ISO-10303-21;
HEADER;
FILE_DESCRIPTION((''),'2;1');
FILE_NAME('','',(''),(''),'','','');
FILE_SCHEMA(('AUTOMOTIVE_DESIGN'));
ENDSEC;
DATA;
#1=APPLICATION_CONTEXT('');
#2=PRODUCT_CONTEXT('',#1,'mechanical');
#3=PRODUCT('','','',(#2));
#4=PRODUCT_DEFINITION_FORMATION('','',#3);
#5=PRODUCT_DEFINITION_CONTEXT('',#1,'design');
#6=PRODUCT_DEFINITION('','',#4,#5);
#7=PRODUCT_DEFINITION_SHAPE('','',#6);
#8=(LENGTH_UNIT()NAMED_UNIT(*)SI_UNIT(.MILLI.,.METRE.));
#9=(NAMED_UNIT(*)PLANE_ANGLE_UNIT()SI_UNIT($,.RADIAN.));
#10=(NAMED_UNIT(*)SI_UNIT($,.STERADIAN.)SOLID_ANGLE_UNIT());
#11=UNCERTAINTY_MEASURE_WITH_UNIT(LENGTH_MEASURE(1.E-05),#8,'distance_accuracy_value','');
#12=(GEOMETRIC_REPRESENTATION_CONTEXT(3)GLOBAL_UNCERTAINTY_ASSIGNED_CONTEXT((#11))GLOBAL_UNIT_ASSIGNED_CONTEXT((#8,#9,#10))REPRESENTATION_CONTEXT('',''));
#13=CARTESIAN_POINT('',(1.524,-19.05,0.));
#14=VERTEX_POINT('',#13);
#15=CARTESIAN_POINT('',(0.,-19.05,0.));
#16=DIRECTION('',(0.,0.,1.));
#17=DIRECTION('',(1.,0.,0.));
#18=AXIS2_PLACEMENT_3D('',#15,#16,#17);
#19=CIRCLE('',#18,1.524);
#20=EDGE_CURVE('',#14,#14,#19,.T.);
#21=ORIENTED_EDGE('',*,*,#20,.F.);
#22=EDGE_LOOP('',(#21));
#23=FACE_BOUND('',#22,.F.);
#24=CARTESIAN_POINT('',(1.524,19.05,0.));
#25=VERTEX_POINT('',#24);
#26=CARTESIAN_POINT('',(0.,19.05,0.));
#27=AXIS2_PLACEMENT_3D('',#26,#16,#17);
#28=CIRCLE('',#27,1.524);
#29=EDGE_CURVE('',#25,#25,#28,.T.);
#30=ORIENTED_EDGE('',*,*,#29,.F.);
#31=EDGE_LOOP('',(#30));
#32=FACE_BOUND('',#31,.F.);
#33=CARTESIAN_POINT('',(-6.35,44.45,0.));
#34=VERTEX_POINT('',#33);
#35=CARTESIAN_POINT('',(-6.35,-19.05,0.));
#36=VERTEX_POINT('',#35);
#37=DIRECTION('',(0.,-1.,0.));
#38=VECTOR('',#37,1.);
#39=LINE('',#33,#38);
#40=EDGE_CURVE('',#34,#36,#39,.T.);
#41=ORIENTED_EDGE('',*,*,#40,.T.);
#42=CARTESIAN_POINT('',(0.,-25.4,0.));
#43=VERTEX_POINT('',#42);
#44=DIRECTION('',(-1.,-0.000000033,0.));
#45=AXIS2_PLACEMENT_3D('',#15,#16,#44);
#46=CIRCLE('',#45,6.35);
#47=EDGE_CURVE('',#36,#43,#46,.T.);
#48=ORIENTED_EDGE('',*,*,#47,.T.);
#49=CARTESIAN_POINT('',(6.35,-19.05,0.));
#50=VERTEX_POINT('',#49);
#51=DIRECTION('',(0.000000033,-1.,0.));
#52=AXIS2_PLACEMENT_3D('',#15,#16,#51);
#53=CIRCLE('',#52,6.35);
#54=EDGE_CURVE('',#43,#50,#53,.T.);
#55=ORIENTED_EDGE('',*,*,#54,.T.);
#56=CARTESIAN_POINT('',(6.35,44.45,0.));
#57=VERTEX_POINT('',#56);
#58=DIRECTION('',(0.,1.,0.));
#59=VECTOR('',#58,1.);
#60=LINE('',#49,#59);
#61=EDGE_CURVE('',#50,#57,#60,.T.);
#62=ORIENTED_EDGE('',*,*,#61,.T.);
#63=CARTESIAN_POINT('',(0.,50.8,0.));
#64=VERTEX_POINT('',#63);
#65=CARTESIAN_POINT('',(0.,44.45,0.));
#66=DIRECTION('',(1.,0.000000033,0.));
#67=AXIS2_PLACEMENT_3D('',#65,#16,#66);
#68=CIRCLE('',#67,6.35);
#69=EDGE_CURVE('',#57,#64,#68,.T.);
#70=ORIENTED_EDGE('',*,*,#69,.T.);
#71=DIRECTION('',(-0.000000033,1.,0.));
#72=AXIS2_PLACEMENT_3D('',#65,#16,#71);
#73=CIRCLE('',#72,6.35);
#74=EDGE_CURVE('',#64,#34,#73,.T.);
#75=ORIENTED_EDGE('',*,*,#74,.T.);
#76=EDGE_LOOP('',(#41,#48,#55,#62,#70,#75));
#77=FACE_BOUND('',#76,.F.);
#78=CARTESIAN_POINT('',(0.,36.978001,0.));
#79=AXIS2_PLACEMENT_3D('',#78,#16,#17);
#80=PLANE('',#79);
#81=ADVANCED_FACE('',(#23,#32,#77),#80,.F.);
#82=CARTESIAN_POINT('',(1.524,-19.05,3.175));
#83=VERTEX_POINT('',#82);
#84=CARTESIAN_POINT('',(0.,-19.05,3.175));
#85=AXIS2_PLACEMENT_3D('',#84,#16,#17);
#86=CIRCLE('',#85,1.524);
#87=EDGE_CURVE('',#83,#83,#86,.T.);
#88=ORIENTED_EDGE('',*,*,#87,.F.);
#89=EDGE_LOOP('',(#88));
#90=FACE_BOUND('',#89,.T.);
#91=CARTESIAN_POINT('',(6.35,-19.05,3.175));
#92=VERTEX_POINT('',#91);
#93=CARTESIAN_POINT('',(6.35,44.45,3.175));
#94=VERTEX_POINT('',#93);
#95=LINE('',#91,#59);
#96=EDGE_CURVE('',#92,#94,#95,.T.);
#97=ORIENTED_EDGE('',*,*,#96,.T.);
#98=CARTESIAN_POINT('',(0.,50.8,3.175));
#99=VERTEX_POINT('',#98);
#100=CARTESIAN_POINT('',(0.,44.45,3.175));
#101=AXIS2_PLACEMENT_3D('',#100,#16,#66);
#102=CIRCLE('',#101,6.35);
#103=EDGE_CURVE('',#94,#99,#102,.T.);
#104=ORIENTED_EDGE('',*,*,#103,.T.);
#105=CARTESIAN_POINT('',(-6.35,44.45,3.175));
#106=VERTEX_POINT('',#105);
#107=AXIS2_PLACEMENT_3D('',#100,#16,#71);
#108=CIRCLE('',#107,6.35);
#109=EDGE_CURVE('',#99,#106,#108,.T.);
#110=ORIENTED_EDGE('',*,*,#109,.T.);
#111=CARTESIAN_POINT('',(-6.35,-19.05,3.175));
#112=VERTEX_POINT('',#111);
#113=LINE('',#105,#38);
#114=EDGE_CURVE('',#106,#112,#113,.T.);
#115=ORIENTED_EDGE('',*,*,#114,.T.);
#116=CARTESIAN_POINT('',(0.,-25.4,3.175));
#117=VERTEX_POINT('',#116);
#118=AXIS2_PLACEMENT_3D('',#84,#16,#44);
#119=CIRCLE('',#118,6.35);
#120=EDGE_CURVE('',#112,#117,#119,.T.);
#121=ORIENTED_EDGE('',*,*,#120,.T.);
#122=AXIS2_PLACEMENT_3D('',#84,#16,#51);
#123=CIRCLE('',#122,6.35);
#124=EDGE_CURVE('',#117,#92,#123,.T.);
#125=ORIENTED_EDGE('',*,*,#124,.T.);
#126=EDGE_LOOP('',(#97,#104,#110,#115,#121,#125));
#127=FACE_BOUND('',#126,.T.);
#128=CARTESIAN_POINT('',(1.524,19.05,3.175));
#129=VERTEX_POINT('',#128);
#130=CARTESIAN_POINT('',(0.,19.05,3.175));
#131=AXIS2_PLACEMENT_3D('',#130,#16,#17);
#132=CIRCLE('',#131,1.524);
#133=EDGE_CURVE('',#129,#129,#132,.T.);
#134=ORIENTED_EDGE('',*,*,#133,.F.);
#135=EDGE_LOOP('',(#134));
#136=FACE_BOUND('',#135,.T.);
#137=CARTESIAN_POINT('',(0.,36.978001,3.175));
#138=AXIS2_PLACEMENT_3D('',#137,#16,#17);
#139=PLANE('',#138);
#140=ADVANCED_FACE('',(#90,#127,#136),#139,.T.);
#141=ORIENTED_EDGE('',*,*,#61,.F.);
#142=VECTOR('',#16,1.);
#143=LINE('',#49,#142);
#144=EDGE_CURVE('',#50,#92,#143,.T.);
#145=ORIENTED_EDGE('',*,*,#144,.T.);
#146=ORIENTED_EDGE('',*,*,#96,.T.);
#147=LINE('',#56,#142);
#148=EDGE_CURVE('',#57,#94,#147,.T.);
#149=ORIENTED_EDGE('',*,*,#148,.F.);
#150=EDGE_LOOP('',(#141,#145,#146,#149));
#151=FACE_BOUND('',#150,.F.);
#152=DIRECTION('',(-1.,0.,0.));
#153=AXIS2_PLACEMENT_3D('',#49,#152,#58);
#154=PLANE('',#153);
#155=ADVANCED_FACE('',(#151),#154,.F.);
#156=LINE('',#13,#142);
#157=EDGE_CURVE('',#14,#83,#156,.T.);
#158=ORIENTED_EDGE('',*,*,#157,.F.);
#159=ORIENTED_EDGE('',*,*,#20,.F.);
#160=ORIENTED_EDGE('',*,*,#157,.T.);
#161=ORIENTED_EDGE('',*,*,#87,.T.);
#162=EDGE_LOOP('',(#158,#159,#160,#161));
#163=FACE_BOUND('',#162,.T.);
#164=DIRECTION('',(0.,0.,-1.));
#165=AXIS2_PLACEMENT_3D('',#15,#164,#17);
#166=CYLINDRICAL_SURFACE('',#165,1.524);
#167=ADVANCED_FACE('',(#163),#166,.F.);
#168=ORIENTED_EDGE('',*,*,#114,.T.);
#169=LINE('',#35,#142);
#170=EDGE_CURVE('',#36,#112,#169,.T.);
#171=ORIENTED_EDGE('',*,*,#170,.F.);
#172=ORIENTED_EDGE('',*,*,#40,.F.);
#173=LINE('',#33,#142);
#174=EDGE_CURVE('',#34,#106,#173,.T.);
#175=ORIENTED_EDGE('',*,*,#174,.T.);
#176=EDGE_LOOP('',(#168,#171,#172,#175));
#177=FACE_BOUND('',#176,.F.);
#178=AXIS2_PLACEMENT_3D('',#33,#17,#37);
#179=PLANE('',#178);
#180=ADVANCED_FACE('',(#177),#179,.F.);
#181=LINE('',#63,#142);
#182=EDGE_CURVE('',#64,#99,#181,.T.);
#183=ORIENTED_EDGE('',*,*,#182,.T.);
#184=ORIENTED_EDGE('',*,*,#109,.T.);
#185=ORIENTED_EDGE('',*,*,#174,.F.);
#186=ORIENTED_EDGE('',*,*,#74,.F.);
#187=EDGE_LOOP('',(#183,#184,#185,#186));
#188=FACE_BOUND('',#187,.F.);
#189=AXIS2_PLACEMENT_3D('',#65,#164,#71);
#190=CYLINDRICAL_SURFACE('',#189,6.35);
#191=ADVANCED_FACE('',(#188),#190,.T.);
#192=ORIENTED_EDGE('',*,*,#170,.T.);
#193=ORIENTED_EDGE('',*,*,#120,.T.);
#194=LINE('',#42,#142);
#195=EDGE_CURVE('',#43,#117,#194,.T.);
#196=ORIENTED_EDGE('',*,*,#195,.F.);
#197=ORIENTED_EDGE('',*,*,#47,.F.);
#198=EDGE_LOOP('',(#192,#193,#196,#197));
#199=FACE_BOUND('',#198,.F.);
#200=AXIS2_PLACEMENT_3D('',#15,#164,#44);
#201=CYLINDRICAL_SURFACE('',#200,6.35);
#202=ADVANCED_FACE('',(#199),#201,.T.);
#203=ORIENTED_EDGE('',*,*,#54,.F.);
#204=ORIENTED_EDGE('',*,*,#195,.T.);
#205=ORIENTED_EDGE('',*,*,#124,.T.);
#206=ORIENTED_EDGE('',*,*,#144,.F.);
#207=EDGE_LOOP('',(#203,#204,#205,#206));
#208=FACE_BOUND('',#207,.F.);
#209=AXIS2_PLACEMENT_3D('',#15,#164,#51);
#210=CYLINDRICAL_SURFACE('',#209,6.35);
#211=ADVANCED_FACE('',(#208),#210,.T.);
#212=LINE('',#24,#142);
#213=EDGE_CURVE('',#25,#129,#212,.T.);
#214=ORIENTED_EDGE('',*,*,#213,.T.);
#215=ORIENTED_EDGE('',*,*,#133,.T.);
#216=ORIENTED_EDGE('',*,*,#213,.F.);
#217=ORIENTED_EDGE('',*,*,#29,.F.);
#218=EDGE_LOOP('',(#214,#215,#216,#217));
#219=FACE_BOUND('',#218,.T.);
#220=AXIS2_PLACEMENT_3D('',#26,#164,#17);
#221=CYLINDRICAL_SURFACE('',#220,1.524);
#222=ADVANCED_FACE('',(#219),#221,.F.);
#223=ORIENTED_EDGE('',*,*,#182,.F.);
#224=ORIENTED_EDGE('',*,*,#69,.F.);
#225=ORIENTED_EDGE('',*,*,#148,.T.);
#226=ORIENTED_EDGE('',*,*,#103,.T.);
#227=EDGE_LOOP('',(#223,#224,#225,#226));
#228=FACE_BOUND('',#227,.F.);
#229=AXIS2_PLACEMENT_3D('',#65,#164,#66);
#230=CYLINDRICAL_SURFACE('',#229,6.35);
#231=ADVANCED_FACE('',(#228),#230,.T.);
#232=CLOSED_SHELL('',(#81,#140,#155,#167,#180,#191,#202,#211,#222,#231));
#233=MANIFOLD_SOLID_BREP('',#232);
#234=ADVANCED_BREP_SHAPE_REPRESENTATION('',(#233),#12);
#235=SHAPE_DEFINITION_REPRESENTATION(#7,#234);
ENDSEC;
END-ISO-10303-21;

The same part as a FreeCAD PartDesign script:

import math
import FreeCAD as App
import Part
import Sketcher
from FreeCAD import Vector
Q = App.Units.Quantity

doc = App.newDocument("Part")
params = doc.addObject("Spreadsheet::Sheet", "Params")
for row, (alias, value) in enumerate([
    ("sketch1_diameter", "0.12 in"),
    ("sketch1_radius", "0.25 in"),
    ("sketch1_height", "2.5 in"),
    ("pad1_length", "0.125 in"),
], start=1):
    params.set(f"A{row}", alias)
    params.set(f"B{row}", "=" + value)
    params.setAlias(f"B{row}", alias)

body = doc.addObject("PartDesign::Body", "Body")

# Sketch on XY plane
sketch1 = doc.addObject("Sketcher::SketchObject", "Sketch")
body.addObject(sketch1)
sketch1.AttachmentSupport = (doc.XY_Plane, [""])
sketch1.MapMode = "FlatFace"
sketch1.addGeometry(Part.ArcOfCircle(Part.Circle(Vector(0, 44.45, 0), Vector(0, 0, 1), 6.35), math.radians(0.000002), math.radians(89.999998)), False)
sketch1.addGeometry(Part.ArcOfCircle(Part.Circle(Vector(0, 44.45, 0), Vector(0, 0, 1), 6.35), math.radians(90.000002), math.radians(179.999998)), False)
sketch1.addGeometry(Part.LineSegment(Vector(-6.35, 44.45, 0), Vector(-6.35, -19.05, 0)), False)
sketch1.addGeometry(Part.ArcOfCircle(Part.Circle(Vector(0, -19.05, 0), Vector(0, 0, 1), 6.35), math.radians(-179.999998), math.radians(-90.000002)), False)
sketch1.addGeometry(Part.ArcOfCircle(Part.Circle(Vector(0, -19.05, 0), Vector(0, 0, 1), 6.35), math.radians(-89.999998), math.radians(-0.000002)), False)
sketch1.addGeometry(Part.LineSegment(Vector(6.35, -19.05, 0), Vector(6.35, 44.45, 0)), False)
sketch1.addGeometry(Part.Circle(Vector(0, -19.05, 0), Vector(0, 0, 1), 1.524), False)
sketch1.addGeometry(Part.Circle(Vector(0, 19.05, 0), Vector(0, 0, 1), 1.524), False)
sketch1.addConstraint(Sketcher.Constraint("Tangent", 0, 2, 1, 1))
sketch1.addConstraint(Sketcher.Constraint("Tangent", 1, 2, 2, 1))
sketch1.addConstraint(Sketcher.Constraint("Tangent", 2, 2, 3, 1))
sketch1.addConstraint(Sketcher.Constraint("Tangent", 3, 2, 4, 1))
sketch1.addConstraint(Sketcher.Constraint("Tangent", 4, 2, 5, 1))
sketch1.addConstraint(Sketcher.Constraint("Tangent", 5, 2, 0, 1))
sketch1.addConstraint(Sketcher.Constraint("Vertical", 2))
sketch1.addConstraint(Sketcher.Constraint("Vertical", 5))
sketch1.addConstraint(Sketcher.Constraint("Coincident", 6, 3, 3, 3))
sketch1.addConstraint(Sketcher.Constraint("Equal", 0, 1))
sketch1.addConstraint(Sketcher.Constraint("Equal", 1, 3))
sketch1.addConstraint(Sketcher.Constraint("Equal", 6, 7))
sketch1.addConstraint(Sketcher.Constraint("Symmetric", 3, 3, 7, 3, -1, 1))
sketch1.addConstraint(Sketcher.Constraint("PointOnObject", 0, 3, -2))
sketch1.addConstraint(Sketcher.Constraint("PointOnObject", 0, 2, -2))
sketch1.addConstraint(Sketcher.Constraint("PointOnObject", 3, 2, -2))
sketch1.addConstraint(Sketcher.Constraint("Diameter", 6, Q("0.12 in")))
sketch1.addConstraint(Sketcher.Constraint("Radius", 0, Q("0.25 in")))
sketch1.addConstraint(Sketcher.Constraint("DistanceY", 2, 2, 2, 1, Q("2.5 in")))
sketch1.addConstraint(Sketcher.Constraint("DistanceY", -1, 1, 0, 2, Q("2 in")))
sketch1.setExpression("Constraints[16]", "Params.sketch1_diameter")
sketch1.setExpression("Constraints[17]", "Params.sketch1_radius")
sketch1.setExpression("Constraints[18]", "Params.sketch1_height")
pad1 = doc.addObject("PartDesign::Pad", "Pad")
body.addObject(pad1)
pad1.Profile = sketch1
pad1.setExpression("Length", "Params.pad1_length")

doc.recompute()
